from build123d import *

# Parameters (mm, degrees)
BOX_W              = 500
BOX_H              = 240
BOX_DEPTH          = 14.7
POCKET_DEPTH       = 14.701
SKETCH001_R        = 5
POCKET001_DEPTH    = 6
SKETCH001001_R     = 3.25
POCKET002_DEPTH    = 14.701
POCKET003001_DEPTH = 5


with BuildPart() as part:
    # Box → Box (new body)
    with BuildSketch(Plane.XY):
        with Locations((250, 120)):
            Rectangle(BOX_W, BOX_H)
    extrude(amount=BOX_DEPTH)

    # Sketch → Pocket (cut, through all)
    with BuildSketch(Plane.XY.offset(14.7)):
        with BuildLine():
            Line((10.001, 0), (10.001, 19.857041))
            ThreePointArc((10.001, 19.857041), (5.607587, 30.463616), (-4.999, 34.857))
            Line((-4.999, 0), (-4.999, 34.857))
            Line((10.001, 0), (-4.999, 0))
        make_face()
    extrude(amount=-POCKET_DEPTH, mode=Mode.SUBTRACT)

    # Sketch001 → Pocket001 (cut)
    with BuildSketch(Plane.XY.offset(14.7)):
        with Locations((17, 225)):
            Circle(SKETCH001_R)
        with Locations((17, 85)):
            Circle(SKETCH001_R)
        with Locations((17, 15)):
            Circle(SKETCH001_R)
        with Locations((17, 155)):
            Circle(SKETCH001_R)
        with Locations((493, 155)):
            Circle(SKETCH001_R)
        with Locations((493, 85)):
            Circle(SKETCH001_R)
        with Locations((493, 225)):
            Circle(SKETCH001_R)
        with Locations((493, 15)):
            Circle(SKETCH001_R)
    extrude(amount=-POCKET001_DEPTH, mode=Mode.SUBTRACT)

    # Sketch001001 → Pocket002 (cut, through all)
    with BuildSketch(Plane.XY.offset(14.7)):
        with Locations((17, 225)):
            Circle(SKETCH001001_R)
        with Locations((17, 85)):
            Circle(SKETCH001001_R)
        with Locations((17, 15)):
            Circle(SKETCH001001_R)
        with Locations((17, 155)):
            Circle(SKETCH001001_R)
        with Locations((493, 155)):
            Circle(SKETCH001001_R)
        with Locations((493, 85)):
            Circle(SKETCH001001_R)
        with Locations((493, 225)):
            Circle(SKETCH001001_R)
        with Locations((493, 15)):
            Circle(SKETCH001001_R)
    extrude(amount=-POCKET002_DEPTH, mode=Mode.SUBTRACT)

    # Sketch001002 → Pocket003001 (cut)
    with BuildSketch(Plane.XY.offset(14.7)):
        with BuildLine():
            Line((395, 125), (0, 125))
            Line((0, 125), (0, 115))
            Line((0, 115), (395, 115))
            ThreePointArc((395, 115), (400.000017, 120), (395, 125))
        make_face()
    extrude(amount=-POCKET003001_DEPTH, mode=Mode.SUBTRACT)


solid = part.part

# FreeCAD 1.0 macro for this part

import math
import FreeCAD as App
import Part
import Sketcher

V = App.Vector


def add_polygon(sketch, points):
    """Adds a closed chain of lines whose ends are joined by coincident constraints."""
    first, n = sketch.GeometryCount, len(points)
    for a, b in zip(points, points[1:] + points[:1]):
        sketch.addGeometry(Part.LineSegment(App.Vector(*a, 0), App.Vector(*b, 0)), False)
    for i in range(n):
        sketch.addConstraint(Sketcher.Constraint("Coincident", first + i, 2, first + (i + 1) % n, 1))

doc = App.newDocument("Part")
body = doc.addObject("PartDesign::Body", "Body")

sketch1 = body.newObject("Sketcher::SketchObject", "Sketch")
sketch1.AttachmentSupport = (doc.getObject("XY_Plane"), [""])
sketch1.MapMode = "FlatFace"
add_polygon(sketch1, [(0, 240), (0, 0), (500, 0), (500, 240)])
sketch1.addConstraint(Sketcher.Constraint("Vertical", 0))
sketch1.addConstraint(Sketcher.Constraint("Horizontal", 1))
sketch1.addConstraint(Sketcher.Constraint("Vertical", 2))
sketch1.addConstraint(Sketcher.Constraint("Horizontal", 3))
sketch1.addConstraint(Sketcher.Constraint("Coincident", 0, 2, -1, 1))
sketch1.addConstraint(Sketcher.Constraint("DistanceX", 1, 1, 1, 2, 500.0))
sketch1.addConstraint(Sketcher.Constraint("DistanceY", 0, 2, 0, 1, 240.0))
pad1 = body.newObject("PartDesign::Pad", "Pad")
pad1.Profile = sketch1
pad1.Length = 14.7

sketch2 = body.newObject("Sketcher::SketchObject", "Sketch001")
sketch2.AttachmentSupport = (doc.getObject("XY_Plane"), [""])
sketch2.MapMode = "FlatFace"
sketch2.AttachmentOffset = App.Placement(V(0, 0, 14.7), App.Rotation())
sketch2.addGeometry(Part.LineSegment(V(10, 0, 0), V(10, 20, 0)), False)
sketch2.addGeometry(Part.ArcOfCircle(Part.Circle(V(-5, 20, 0), V(0, 0, 1), 15), math.radians(0), math.radians(90)), False)
sketch2.addGeometry(Part.LineSegment(V(-5, 35, 0), V(-5, 0, 0)), False)
sketch2.addGeometry(Part.LineSegment(V(-5, 0, 0), V(10, 0, 0)), False)
sketch2.addConstraint(Sketcher.Constraint("Coincident", 0, 2, 1, 1))
sketch2.addConstraint(Sketcher.Constraint("Coincident", 1, 2, 2, 1))
sketch2.addConstraint(Sketcher.Constraint("Coincident", 2, 2, 3, 1))
sketch2.addConstraint(Sketcher.Constraint("Coincident", 3, 2, 0, 1))
sketch2.addConstraint(Sketcher.Constraint("Vertical", 0))
sketch2.addConstraint(Sketcher.Constraint("Vertical", 2))
sketch2.addConstraint(Sketcher.Constraint("Horizontal", 3))
sketch2.addConstraint(Sketcher.Constraint("PointOnObject", 2, 2, -1))
sketch2.addConstraint(Sketcher.Constraint("Radius", 1, 15.000001))
sketch2.addConstraint(Sketcher.Constraint("DistanceX", 3, 1, 3, 2, 15.0))
sketch2.addConstraint(Sketcher.Constraint("DistanceY", 2, 2, 2, 1, 34.857))
sketch2.addConstraint(Sketcher.Constraint("DistanceX", 1, 3, -1, 1, 4.999001))
sketch2.addConstraint(Sketcher.Constraint("DistanceY", 0, 1, 0, 2, 19.857041))
pocket1 = body.newObject("PartDesign::Pocket", "Pocket")
pocket1.Profile = sketch2
pocket1.Type = "ThroughAll"

sketch3 = body.newObject("Sketcher::SketchObject", "Sketch002")
sketch3.AttachmentSupport = (doc.getObject("XY_Plane"), [""])
sketch3.MapMode = "FlatFace"
sketch3.AttachmentOffset = App.Placement(V(0, 0, 14.7), App.Rotation())
sketch3.addGeometry(Part.Circle(V(17, 225, 0), V(0, 0, 1), 5), False)
sketch3.addGeometry(Part.Circle(V(17, 85, 0), V(0, 0, 1), 5), False)
sketch3.addGeometry(Part.Circle(V(17, 15, 0), V(0, 0, 1), 5), False)
sketch3.addGeometry(Part.Circle(V(17, 155, 0), V(0, 0, 1), 5), False)
sketch3.addGeometry(Part.Circle(V(493, 155, 0), V(0, 0, 1), 5), False)
sketch3.addGeometry(Part.Circle(V(493, 85, 0), V(0, 0, 1), 5), False)
sketch3.addGeometry(Part.Circle(V(493, 225, 0), V(0, 0, 1), 5), False)
sketch3.addGeometry(Part.Circle(V(493, 15, 0), V(0, 0, 1), 5), False)
sketch3.addConstraint(Sketcher.Constraint("Equal", 0, 1))
sketch3.addConstraint(Sketcher.Constraint("Equal", 1, 2))
sketch3.addConstraint(Sketcher.Constraint("Equal", 2, 3))
sketch3.addConstraint(Sketcher.Constraint("Equal", 3, 4))
sketch3.addConstraint(Sketcher.Constraint("Equal", 4, 5))
sketch3.addConstraint(Sketcher.Constraint("Equal", 5, 6))
sketch3.addConstraint(Sketcher.Constraint("Equal", 6, 7))
sketch3.addConstraint(Sketcher.Constraint("Horizontal", 3, 3, 4, 3))
sketch3.addConstraint(Sketcher.Constraint("Horizontal", 1, 3, 5, 3))
sketch3.addConstraint(Sketcher.Constraint("Horizontal", 0, 3, 6, 3))
sketch3.addConstraint(Sketcher.Constraint("Horizontal", 2, 3, 7, 3))
sketch3.addConstraint(Sketcher.Constraint("Vertical", 0, 3, 1, 3))
sketch3.addConstraint(Sketcher.Constraint("Vertical", 1, 3, 2, 3))
sketch3.addConstraint(Sketcher.Constraint("Vertical", 2, 3, 3, 3))
sketch3.addConstraint(Sketcher.Constraint("Vertical", 4, 3, 5, 3))
sketch3.addConstraint(Sketcher.Constraint("Vertical", 5, 3, 6, 3))
sketch3.addConstraint(Sketcher.Constraint("Vertical", 6, 3, 7, 3))
sketch3.addConstraint(Sketcher.Constraint("Diameter", 0, 10.0))
sketch3.addConstraint(Sketcher.Constraint("DistanceX", -1, 1, 0, 3, 17.0))
sketch3.addConstraint(Sketcher.Constraint("DistanceY", -1, 1, 0, 3, 225.0))
sketch3.addConstraint(Sketcher.Constraint("DistanceY", -1, 1, 1, 3, 85.0))
sketch3.addConstraint(Sketcher.Constraint("DistanceY", -1, 1, 2, 3, 15.0))
sketch3.addConstraint(Sketcher.Constraint("DistanceY", -1, 1, 3, 3, 155.0))
sketch3.addConstraint(Sketcher.Constraint("DistanceX", -1, 1, 4, 3, 493.0))
pocket2 = body.newObject("PartDesign::Pocket", "Pocket001")
pocket2.Profile = sketch3
pocket2.Length = 6

sketch4 = body.newObject("Sketcher::SketchObject", "Sketch003")
sketch4.AttachmentSupport = (doc.getObject("XY_Plane"), [""])
sketch4.MapMode = "FlatFace"
sketch4.AttachmentOffset = App.Placement(V(0, 0, 14.7), App.Rotation())
sketch4.addGeometry(Part.Circle(V(17, 225, 0), V(0, 0, 1), 3.2), False)
sketch4.addGeometry(Part.Circle(V(17, 85, 0), V(0, 0, 1), 3.2), False)
sketch4.addGeometry(Part.Circle(V(17, 15, 0), V(0, 0, 1), 3.2), False)
sketch4.addGeometry(Part.Circle(V(17, 155, 0), V(0, 0, 1), 3.2), False)
sketch4.addGeometry(Part.Circle(V(493, 155, 0), V(0, 0, 1), 3.2), False)
sketch4.addGeometry(Part.Circle(V(493, 85, 0), V(0, 0, 1), 3.2), False)
sketch4.addGeometry(Part.Circle(V(493, 225, 0), V(0, 0, 1), 3.2), False)
sketch4.addGeometry(Part.Circle(V(493, 15, 0), V(0, 0, 1), 3.2), False)
sketch4.addConstraint(Sketcher.Constraint("Equal", 0, 1))
sketch4.addConstraint(Sketcher.Constraint("Equal", 1, 2))
sketch4.addConstraint(Sketcher.Constraint("Equal", 2, 3))
sketch4.addConstraint(Sketcher.Constraint("Equal", 3, 4))
sketch4.addConstraint(Sketcher.Constraint("Equal", 4, 5))
sketch4.addConstraint(Sketcher.Constraint("Equal", 5, 6))
sketch4.addConstraint(Sketcher.Constraint("Equal", 6, 7))
sketch4.addConstraint(Sketcher.Constraint("Horizontal", 3, 3, 4, 3))
sketch4.addConstraint(Sketcher.Constraint("Horizontal", 1, 3, 5, 3))
sketch4.addConstraint(Sketcher.Constraint("Horizontal", 0, 3, 6, 3))
sketch4.addConstraint(Sketcher.Constraint("Horizontal", 2, 3, 7, 3))
sketch4.addConstraint(Sketcher.Constraint("Vertical", 0, 3, 1, 3))
sketch4.addConstraint(Sketcher.Constraint("Vertical", 1, 3, 2, 3))
sketch4.addConstraint(Sketcher.Constraint("Vertical", 2, 3, 3, 3))
sketch4.addConstraint(Sketcher.Constraint("Vertical", 4, 3, 5, 3))
sketch4.addConstraint(Sketcher.Constraint("Vertical", 5, 3, 6, 3))
sketch4.addConstraint(Sketcher.Constraint("Vertical", 6, 3, 7, 3))
sketch4.addConstraint(Sketcher.Constraint("Diameter", 0, 6.5))
sketch4.addConstraint(Sketcher.Constraint("DistanceX", -1, 1, 0, 3, 17.0))
sketch4.addConstraint(Sketcher.Constraint("DistanceY", -1, 1, 0, 3, 225.0))
sketch4.addConstraint(Sketcher.Constraint("DistanceY", -1, 1, 1, 3, 85.0))
sketch4.addConstraint(Sketcher.Constraint("DistanceY", -1, 1, 2, 3, 15.0))
sketch4.addConstraint(Sketcher.Constraint("DistanceY", -1, 1, 3, 3, 155.0))
sketch4.addConstraint(Sketcher.Constraint("DistanceX", -1, 1, 4, 3, 493.0))
pocket3 = body.newObject("PartDesign::Pocket", "Pocket002")
pocket3.Profile = sketch4
pocket3.Type = "ThroughAll"

sketch5 = body.newObject("Sketcher::SketchObject", "Sketch004")
sketch5.AttachmentSupport = (doc.getObject("XY_Plane"), [""])
sketch5.MapMode = "FlatFace"
sketch5.AttachmentOffset = App.Placement(V(0, 0, 14.7), App.Rotation())
sketch5.addGeometry(Part.LineSegment(V(395, 125, 0), V(0, 125, 0)), False)
sketch5.addGeometry(Part.LineSegment(V(0, 125, 0), V(0, 115, 0)), False)
sketch5.addGeometry(Part.LineSegment(V(0, 115, 0), V(395, 115, 0)), False)
sketch5.addGeometry(Part.ArcOfCircle(Part.Circle(V(395, 120, 0), V(0, 0, 1), 5), math.radians(-90), math.radians(90)), False)
sketch5.addConstraint(Sketcher.Constraint("Coincident", 0, 2, 1, 1))
sketch5.addConstraint(Sketcher.Constraint("Coincident", 1, 2, 2, 1))
sketch5.addConstraint(Sketcher.Constraint("Coincident", 2, 2, 3, 1))
sketch5.addConstraint(Sketcher.Constraint("Coincident", 3, 2, 0, 1))
sketch5.addConstraint(Sketcher.Constraint("Horizontal", 0))
sketch5.addConstraint(Sketcher.Constraint("Vertical", 1))
sketch5.addConstraint(Sketcher.Constraint("Horizontal", 2))
sketch5.addConstraint(Sketcher.Constraint("PointOnObject", 0, 2, -2))
sketch5.addConstraint(Sketcher.Constraint("Vertical", 2, 2, 3, 2))
sketch5.addConstraint(Sketcher.Constraint("Radius", 3, 5.0))
sketch5.addConstraint(Sketcher.Constraint("DistanceX", 0, 2, 0, 1, 395.0))
sketch5.addConstraint(Sketcher.Constraint("DistanceY", -1, 1, 3, 3, 120.0))
sketch5.addConstraint(Sketcher.Constraint("DistanceX", -1, 1, 3, 3, 395.000017))
pocket4 = body.newObject("PartDesign::Pocket", "Pocket003")
pocket4.Profile = sketch5
pocket4.Length = 5

doc.recompute()
